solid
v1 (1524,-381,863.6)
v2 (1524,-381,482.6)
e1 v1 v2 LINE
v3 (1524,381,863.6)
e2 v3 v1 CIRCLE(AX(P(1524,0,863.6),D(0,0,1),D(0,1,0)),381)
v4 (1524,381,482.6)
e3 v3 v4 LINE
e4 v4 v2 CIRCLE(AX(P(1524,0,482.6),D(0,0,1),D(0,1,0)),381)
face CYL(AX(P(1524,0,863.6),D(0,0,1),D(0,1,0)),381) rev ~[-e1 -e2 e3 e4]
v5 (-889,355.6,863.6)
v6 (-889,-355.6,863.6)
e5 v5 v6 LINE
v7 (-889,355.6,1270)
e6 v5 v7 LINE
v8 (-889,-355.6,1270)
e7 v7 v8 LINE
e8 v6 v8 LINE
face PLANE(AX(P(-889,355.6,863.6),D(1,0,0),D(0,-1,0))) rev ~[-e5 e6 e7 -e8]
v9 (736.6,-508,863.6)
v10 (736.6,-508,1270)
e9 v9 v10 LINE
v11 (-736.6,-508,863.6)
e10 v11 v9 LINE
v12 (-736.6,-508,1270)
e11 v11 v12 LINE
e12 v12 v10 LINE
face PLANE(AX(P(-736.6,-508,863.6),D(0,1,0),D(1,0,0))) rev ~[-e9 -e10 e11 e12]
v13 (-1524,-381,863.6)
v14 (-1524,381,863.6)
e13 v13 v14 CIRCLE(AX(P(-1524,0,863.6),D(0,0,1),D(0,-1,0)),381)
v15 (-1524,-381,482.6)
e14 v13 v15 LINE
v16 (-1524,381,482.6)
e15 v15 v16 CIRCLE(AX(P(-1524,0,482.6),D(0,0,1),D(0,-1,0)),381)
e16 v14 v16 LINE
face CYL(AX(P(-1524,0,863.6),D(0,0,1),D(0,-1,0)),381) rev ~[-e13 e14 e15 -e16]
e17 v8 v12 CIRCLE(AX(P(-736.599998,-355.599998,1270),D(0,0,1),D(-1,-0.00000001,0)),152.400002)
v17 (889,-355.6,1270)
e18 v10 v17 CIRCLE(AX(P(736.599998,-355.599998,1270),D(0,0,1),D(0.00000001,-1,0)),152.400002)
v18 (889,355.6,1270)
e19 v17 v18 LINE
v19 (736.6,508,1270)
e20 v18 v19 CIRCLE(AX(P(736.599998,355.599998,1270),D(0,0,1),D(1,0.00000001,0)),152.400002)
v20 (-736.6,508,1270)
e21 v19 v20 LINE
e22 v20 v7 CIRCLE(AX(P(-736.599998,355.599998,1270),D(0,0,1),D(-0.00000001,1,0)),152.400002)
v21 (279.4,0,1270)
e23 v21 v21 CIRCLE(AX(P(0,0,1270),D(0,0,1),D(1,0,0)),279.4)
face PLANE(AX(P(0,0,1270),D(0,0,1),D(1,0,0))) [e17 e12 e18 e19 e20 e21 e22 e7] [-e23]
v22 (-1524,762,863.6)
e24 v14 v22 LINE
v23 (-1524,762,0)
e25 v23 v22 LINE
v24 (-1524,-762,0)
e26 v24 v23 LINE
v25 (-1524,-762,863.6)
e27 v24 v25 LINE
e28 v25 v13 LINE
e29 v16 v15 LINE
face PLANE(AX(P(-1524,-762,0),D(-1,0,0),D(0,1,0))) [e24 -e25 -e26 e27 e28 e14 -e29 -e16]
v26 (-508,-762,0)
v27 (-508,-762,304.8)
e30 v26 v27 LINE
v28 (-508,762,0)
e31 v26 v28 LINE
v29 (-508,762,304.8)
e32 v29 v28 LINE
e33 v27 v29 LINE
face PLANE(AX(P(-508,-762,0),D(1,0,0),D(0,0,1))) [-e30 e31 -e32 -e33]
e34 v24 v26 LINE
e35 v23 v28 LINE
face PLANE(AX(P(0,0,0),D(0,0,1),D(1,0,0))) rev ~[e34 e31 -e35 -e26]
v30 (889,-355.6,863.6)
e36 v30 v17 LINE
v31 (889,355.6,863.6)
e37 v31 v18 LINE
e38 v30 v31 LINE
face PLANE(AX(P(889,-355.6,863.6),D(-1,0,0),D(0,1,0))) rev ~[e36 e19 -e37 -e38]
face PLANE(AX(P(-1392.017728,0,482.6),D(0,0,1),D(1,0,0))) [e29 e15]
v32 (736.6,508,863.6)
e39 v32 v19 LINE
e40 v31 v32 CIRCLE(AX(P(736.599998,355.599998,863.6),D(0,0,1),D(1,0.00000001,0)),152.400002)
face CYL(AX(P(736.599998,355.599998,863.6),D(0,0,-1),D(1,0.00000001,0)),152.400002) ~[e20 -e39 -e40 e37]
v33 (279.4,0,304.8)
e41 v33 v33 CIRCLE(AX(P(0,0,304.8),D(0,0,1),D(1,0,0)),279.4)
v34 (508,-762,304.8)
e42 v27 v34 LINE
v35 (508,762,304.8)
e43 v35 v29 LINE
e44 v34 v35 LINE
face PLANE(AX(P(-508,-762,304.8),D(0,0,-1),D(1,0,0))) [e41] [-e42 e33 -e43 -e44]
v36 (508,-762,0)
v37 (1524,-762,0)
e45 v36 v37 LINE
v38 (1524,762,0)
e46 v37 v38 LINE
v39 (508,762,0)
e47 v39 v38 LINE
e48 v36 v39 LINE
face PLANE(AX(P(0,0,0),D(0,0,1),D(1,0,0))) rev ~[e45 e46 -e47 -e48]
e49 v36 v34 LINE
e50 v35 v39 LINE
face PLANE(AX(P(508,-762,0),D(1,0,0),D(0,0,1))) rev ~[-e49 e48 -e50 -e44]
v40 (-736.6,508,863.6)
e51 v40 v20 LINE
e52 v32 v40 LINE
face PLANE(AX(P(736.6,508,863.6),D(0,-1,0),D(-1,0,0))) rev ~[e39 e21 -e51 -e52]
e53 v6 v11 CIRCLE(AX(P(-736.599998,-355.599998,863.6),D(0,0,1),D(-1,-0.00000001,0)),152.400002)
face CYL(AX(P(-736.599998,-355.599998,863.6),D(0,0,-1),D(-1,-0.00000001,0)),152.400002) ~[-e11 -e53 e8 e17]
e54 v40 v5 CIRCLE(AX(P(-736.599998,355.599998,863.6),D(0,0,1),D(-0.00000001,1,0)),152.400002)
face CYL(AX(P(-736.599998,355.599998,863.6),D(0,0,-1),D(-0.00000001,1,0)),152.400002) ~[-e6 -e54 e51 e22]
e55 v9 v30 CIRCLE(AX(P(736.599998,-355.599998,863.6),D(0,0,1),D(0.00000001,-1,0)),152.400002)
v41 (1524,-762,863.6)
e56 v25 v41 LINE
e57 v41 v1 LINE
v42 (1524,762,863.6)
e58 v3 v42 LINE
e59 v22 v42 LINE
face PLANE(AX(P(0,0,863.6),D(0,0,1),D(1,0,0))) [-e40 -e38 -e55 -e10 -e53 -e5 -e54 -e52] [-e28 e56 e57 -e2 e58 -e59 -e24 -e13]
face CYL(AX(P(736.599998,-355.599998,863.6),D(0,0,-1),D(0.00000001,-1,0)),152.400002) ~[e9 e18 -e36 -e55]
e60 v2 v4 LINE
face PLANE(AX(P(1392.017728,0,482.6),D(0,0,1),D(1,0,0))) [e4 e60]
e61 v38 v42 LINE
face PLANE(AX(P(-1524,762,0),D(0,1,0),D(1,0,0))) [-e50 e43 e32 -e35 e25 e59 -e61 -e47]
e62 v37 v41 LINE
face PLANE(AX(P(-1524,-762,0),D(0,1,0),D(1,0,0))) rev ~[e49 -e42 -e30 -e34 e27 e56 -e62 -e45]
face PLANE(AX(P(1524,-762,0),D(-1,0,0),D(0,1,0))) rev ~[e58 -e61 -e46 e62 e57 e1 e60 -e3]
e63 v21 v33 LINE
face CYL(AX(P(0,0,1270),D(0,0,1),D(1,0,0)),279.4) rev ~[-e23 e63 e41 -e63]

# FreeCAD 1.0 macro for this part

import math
import FreeCAD as App
import Part
import Sketcher
from FreeCAD import Vector
Q = App.Units.Quantity

doc = App.newDocument("Part")
body = doc.addObject("PartDesign::Body", "Body")

# Sketch on XY plane
sketch1 = doc.addObject("Sketcher::SketchObject", "Sketch")
body.addObject(sketch1)
sketch1.AttachmentSupport = (doc.XY_Plane, [""])
sketch1.MapMode = "FlatFace"
sketch1.addGeometry(Part.LineSegment(Vector(-1524, 762, 0), Vector(-1524, -762, 0)), False)
sketch1.addGeometry(Part.LineSegment(Vector(-1524, -762, 0), Vector(1524, -762, 0)), False)
sketch1.addGeometry(Part.LineSegment(Vector(1524, -762, 0), Vector(1524, 762, 0)), False)
sketch1.addGeometry(Part.LineSegment(Vector(1524, 762, 0), Vector(-1524, 762, 0)), False)
sketch1.addConstraint(Sketcher.Constraint("Coincident", 0, 2, 1, 1))
sketch1.addConstraint(Sketcher.Constraint("Coincident", 1, 2, 2, 1))
sketch1.addConstraint(Sketcher.Constraint("Coincident", 2, 2, 3, 1))
sketch1.addConstraint(Sketcher.Constraint("Coincident", 3, 2, 0, 1))
sketch1.addConstraint(Sketcher.Constraint("Vertical", 0))
sketch1.addConstraint(Sketcher.Constraint("Horizontal", 1))
sketch1.addConstraint(Sketcher.Constraint("Vertical", 2))
sketch1.addConstraint(Sketcher.Constraint("Horizontal", 3))
sketch1.addConstraint(Sketcher.Constraint("Symmetric", 0, 2, 2, 2, -1, 1))
sketch1.addConstraint(Sketcher.Constraint("DistanceX", 1, 1, 1, 2, Q("120 in")))
sketch1.addConstraint(Sketcher.Constraint("DistanceY", 0, 2, 0, 1, Q("60 in")))
pad1 = doc.addObject("PartDesign::Pad", "Pad")
body.addObject(pad1)
pad1.Profile = sketch1
pad1.Length = Q("34 in")

# Sketch on XY plane
sketch2 = doc.addObject("Sketcher::SketchObject", "Sketch001")
body.addObject(sketch2)
sketch2.AttachmentSupport = (doc.XY_Plane, [""])
sketch2.MapMode = "FlatFace"
sketch2.AttachmentOffset = App.Placement(Vector(0, 0, 34 * 25.4), App.Rotation())
sketch2.addGeometry(Part.LineSegment(Vector(-737, -508, 0), Vector(737, -508, 0)), False)
sketch2.addGeometry(Part.ArcOfCircle(Part.Circle(Vector(737, -356, 0), Vector(0, 0, 1), 152), math.radians(-90), math.radians(0)), False)
sketch2.addGeometry(Part.LineSegment(Vector(889, -356, 0), Vector(889, 356, 0)), False)
sketch2.addGeometry(Part.ArcOfCircle(Part.Circle(Vector(737, 356, 0), Vector(0, 0, 1), 152), math.radians(0), math.radians(90)), False)
sketch2.addGeometry(Part.LineSegment(Vector(737, 508, 0), Vector(-737, 508, 0)), False)
sketch2.addGeometry(Part.ArcOfCircle(Part.Circle(Vector(-737, 356, 0), Vector(0, 0, 1), 152), math.radians(90), math.radians(180)), False)
sketch2.addGeometry(Part.LineSegment(Vector(-889, 356, 0), Vector(-889, -356, 0)), False)
sketch2.addGeometry(Part.ArcOfCircle(Part.Circle(Vector(-737, -356, 0), Vector(0, 0, 1), 152), math.radians(-180), math.radians(-90)), False)
sketch2.addConstraint(Sketcher.Constraint("Tangent", 0, 2, 1, 1))
sketch2.addConstraint(Sketcher.Constraint("Tangent", 1, 2, 2, 1))
sketch2.addConstraint(Sketcher.Constraint("Tangent", 2, 2, 3, 1))
sketch2.addConstraint(Sketcher.Constraint("Tangent", 3, 2, 4, 1))
sketch2.addConstraint(Sketcher.Constraint("Tangent", 4, 2, 5, 1))
sketch2.addConstraint(Sketcher.Constraint("Tangent", 5, 2, 6, 1))
sketch2.addConstraint(Sketcher.Constraint("Tangent", 6, 2, 7, 1))
sketch2.addConstraint(Sketcher.Constraint("Tangent", 7, 2, 0, 1))
sketch2.addConstraint(Sketcher.Constraint("Horizontal", 0))
sketch2.addConstraint(Sketcher.Constraint("Vertical", 2))
sketch2.addConstraint(Sketcher.Constraint("Horizontal", 4))
sketch2.addConstraint(Sketcher.Constraint("Vertical", 6))
sketch2.addConstraint(Sketcher.Constraint("Equal", 1, 3))
sketch2.addConstraint(Sketcher.Constraint("Equal", 3, 5))
sketch2.addConstraint(Sketcher.Constraint("Equal", 5, 7))
sketch2.addConstraint(Sketcher.Constraint("Symmetric", 1, 3, 5, 3, -1, 1))
sketch2.addConstraint(Sketcher.Constraint("Radius", 1, Q("6.0000001 in")))
sketch2.addConstraint(Sketcher.Constraint("DistanceX", 0, 1, 0, 2, Q("58 in")))
sketch2.addConstraint(Sketcher.Constraint("DistanceY", 2, 1, 2, 2, Q("28 in")))
pad2 = doc.addObject("PartDesign::Pad", "Pad001")
body.addObject(pad2)
pad2.Profile = sketch2
pad2.Length = Q("16 in")

# Sketch on XY plane
sketch3 = doc.addObject("Sketcher::SketchObject", "Sketch002")
body.addObject(sketch3)
sketch3.AttachmentSupport = (doc.XY_Plane, [""])
sketch3.MapMode = "FlatFace"
sketch3.AttachmentOffset = App.Placement(Vector(0, 0, 50 * 25.4), App.Rotation())
sketch3.addGeometry(Part.Circle(Vector(0, 0, 0), Vector(0, 0, 1), 279), False)
sketch3.addConstraint(Sketcher.Constraint("Coincident", 0, 3, -1, 1))
sketch3.addConstraint(Sketcher.Constraint("Diameter", 0, Q("22 in")))
pocket1 = doc.addObject("PartDesign::Pocket", "Pocket")
body.addObject(pocket1)
pocket1.Profile = sketch3
pocket1.Type = "ThroughAll"

# Sketch on XY plane
sketch4 = doc.addObject("Sketcher::SketchObject", "Sketch003")
body.addObject(sketch4)
sketch4.AttachmentSupport = (doc.XY_Plane, [""])
sketch4.MapMode = "FlatFace"
sketch4.AttachmentOffset = App.Placement(Vector(0, 0, 34 * 25.4), App.Rotation())
sketch4.addGeometry(Part.LineSegment(Vector(-1524, 381, 0), Vector(-1524, -381, 0)), False)
sketch4.addGeometry(Part.ArcOfCircle(Part.Circle(Vector(-1524, 0, 0), Vector(0, 0, 1), 381), math.radians(-90), math.radians(90)), False)
sketch4.addGeometry(Part.LineSegment(Vector(1524, -381, 0), Vector(1524, 381, 0)), False)
sketch4.addGeometry(Part.ArcOfCircle(Part.Circle(Vector(1524, 0, 0), Vector(0, 0, 1), 381), math.radians(90), math.radians(270)), False)
sketch4.addConstraint(Sketcher.Constraint("Coincident", 0, 1, 1, 2))
sketch4.addConstraint(Sketcher.Constraint("Coincident", 1, 1, 0, 2))
sketch4.addConstraint(Sketcher.Constraint("Coincident", 2, 1, 3, 2))
sketch4.addConstraint(Sketcher.Constraint("Coincident", 3, 1, 2, 2))
sketch4.addConstraint(Sketcher.Constraint("Vertical", 0))
sketch4.addConstraint(Sketcher.Constraint("Vertical", 2))
sketch4.addConstraint(Sketcher.Constraint("Equal", 1, 3))
sketch4.addConstraint(Sketcher.Constraint("Symmetric", 1, 3, 3, 3, -1, 1))
sketch4.addConstraint(Sketcher.Constraint("Symmetric", 1, 1, 2, 1, -2))
sketch4.addConstraint(Sketcher.Constraint("Vertical", 1, 3, 0, 1))
sketch4.addConstraint(Sketcher.Constraint("Radius", 1, Q("15 in")))
sketch4.addConstraint(Sketcher.Constraint("DistanceX", 1, 3, -1, 1, Q("60 in")))
pocket2 = doc.addObject("PartDesign::Pocket", "Pocket001")
body.addObject(pocket2)
pocket2.Profile = sketch4
pocket2.Length = Q("15 in")

# Sketch on XZ plane
sketch5 = doc.addObject("Sketcher::SketchObject", "Sketch004")
body.addObject(sketch5)
sketch5.AttachmentSupport = (doc.XZ_Plane, [""])
sketch5.MapMode = "FlatFace"
sketch5.AttachmentOffset = App.Placement(Vector(0, 0, 30 * 25.4), App.Rotation())
sketch5.addGeometry(Part.LineSegment(Vector(-508, 305, 0), Vector(-508, 0, 0)), False)
sketch5.addGeometry(Part.LineSegment(Vector(-508, 0, 0), Vector(508, 0, 0)), False)
sketch5.addGeometry(Part.LineSegment(Vector(508, 0, 0), Vector(508, 305, 0)), False)
sketch5.addGeometry(Part.LineSegment(Vector(508, 305, 0), Vector(-508, 305, 0)), False)
sketch5.addConstraint(Sketcher.Constraint("Coincident", 0, 2, 1, 1))
sketch5.addConstraint(Sketcher.Constraint("Coincident", 1, 2, 2, 1))
sketch5.addConstraint(Sketcher.Constraint("Coincident", 2, 2, 3, 1))
sketch5.addConstraint(Sketcher.Constraint("Coincident", 3, 2, 0, 1))
sketch5.addConstraint(Sketcher.Constraint("Vertical", 0))
sketch5.addConstraint(Sketcher.Constraint("Horizontal", 1))
sketch5.addConstraint(Sketcher.Constraint("Vertical", 2))
sketch5.addConstraint(Sketcher.Constraint("Horizontal", 3))
sketch5.addConstraint(Sketcher.Constraint("Symmetric", 0, 2, 1, 2, -1, 1))
sketch5.addConstraint(Sketcher.Constraint("DistanceX", 1, 1, 1, 2, Q("40 in")))
sketch5.addConstraint(Sketcher.Constraint("DistanceY", 0, 2, 0, 1, Q("12 in")))
pocket3 = doc.addObject("PartDesign::Pocket", "Pocket002")
body.addObject(pocket3)
pocket3.Profile = sketch5
pocket3.Type = "ThroughAll"

doc.recompute()
